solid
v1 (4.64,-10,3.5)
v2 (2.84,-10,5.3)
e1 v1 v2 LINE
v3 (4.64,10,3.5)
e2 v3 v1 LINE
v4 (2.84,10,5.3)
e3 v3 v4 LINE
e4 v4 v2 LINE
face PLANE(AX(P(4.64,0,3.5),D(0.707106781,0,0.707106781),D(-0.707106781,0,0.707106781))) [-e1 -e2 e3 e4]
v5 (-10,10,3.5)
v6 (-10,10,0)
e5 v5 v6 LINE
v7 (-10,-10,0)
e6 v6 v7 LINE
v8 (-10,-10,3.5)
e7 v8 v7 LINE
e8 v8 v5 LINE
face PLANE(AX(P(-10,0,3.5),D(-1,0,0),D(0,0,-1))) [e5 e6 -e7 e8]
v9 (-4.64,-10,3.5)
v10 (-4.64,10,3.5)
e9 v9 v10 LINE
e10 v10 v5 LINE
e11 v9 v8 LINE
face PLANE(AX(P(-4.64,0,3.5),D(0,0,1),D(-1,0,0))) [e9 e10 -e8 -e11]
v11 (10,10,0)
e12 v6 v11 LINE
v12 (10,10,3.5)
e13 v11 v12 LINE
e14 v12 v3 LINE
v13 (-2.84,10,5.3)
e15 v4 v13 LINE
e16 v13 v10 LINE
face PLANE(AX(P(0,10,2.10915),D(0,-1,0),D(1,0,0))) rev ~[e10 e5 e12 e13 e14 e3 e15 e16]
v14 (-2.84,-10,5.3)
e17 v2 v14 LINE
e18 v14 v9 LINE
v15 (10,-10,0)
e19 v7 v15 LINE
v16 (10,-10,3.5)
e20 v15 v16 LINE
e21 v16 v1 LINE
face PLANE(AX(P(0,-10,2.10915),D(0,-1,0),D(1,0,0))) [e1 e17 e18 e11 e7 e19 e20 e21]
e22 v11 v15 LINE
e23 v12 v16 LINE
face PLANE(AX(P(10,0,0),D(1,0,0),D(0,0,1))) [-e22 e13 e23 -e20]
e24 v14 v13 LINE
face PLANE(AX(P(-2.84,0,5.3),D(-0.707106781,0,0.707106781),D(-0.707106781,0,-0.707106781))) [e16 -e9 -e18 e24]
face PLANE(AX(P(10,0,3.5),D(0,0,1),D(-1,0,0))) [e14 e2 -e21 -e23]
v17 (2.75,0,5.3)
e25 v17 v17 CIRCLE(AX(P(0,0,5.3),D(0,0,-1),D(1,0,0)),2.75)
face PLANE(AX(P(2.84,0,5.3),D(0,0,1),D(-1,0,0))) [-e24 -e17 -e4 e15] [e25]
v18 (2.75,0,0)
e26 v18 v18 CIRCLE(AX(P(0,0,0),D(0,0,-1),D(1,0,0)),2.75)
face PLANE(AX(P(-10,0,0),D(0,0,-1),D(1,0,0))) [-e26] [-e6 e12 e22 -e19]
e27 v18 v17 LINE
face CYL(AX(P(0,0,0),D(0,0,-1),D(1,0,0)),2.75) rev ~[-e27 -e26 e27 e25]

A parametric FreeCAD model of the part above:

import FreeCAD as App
import Part
import Sketcher

V = App.Vector
Q = App.Units.Quantity


def add_polygon(sketch, points):
    """Adds a closed chain of lines whose ends are joined by coincident constraints."""
    first, n = sketch.GeometryCount, len(points)
    for a, b in zip(points, points[1:] + points[:1]):
        sketch.addGeometry(Part.LineSegment(App.Vector(*a, 0), App.Vector(*b, 0)), False)
    for i in range(n):
        sketch.addConstraint(Sketcher.Constraint("Coincident", first + i, 2, first + (i + 1) % n, 1))

doc = App.newDocument("Part")
body = doc.addObject("PartDesign::Body", "Body")

# Sketch on XZ plane
sketch1 = doc.addObject("Sketcher::SketchObject", "Sketch")
body.addObject(sketch1)
sketch1.AttachmentSupport = (doc.XZ_Plane, [""])
sketch1.MapMode = "FlatFace"
add_polygon(sketch1, [(-10, 3.5), (-10, 0), (10, 0), (10, 3.5), (4.6, 3.5), (2.8, 5.3), (-2.8, 5.3), (-4.6, 3.5)])  # lines 0-7
sketch1.addConstraint([
    Sketcher.Constraint("Vertical", 0),
    Sketcher.Constraint("Horizontal", 1),
    Sketcher.Constraint("Vertical", 2),
    Sketcher.Constraint("Horizontal", 3),
    Sketcher.Constraint("Horizontal", 5),
    Sketcher.Constraint("Horizontal", 7),
    Sketcher.Constraint("Symmetric", 0, 2, 1, 2, -1, 1),
    Sketcher.Constraint("Symmetric", 3, 2, 6, 2, -2),
    Sketcher.Constraint("Perpendicular", 4, 6),
    Sketcher.Constraint("Equal", 4, 6),
    Sketcher.Constraint("DistanceX", 1, 1, 1, 2, Q("20 mm")),
    Sketcher.Constraint("DistanceY", 0, 2, 0, 1, Q("3.5 mm")),
    Sketcher.Constraint("DistanceX", 3, 2, 3, 1, Q("5.36 mm")),
    Sketcher.Constraint("DistanceX", 5, 2, 5, 1, Q("5.68 mm")),
])
pad1 = doc.addObject("PartDesign::Pad", "Pad")
body.addObject(pad1)
pad1.Profile = sketch1
pad1.Length = 20
pad1.Midplane = True

# Sketch on XY plane
sketch2 = doc.addObject("Sketcher::SketchObject", "Sketch001")
body.addObject(sketch2)
sketch2.AttachmentSupport = (doc.XY_Plane, [""])
sketch2.MapMode = "FlatFace"
sketch2.addGeometry(Part.Circle(V(0, 0, 0), V(0, 0, 1), 2.8), False)
sketch2.addConstraint([
    Sketcher.Constraint("Coincident", 0, 3, -1, 1),
    Sketcher.Constraint("Diameter", 0, Q("5.5 mm")),
])
pocket1 = doc.addObject("PartDesign::Pocket", "Pocket")
body.addObject(pocket1)
pocket1.Profile = sketch2
pocket1.Type = "ThroughAll"
pocket1.Reversed = True

doc.recompute()
